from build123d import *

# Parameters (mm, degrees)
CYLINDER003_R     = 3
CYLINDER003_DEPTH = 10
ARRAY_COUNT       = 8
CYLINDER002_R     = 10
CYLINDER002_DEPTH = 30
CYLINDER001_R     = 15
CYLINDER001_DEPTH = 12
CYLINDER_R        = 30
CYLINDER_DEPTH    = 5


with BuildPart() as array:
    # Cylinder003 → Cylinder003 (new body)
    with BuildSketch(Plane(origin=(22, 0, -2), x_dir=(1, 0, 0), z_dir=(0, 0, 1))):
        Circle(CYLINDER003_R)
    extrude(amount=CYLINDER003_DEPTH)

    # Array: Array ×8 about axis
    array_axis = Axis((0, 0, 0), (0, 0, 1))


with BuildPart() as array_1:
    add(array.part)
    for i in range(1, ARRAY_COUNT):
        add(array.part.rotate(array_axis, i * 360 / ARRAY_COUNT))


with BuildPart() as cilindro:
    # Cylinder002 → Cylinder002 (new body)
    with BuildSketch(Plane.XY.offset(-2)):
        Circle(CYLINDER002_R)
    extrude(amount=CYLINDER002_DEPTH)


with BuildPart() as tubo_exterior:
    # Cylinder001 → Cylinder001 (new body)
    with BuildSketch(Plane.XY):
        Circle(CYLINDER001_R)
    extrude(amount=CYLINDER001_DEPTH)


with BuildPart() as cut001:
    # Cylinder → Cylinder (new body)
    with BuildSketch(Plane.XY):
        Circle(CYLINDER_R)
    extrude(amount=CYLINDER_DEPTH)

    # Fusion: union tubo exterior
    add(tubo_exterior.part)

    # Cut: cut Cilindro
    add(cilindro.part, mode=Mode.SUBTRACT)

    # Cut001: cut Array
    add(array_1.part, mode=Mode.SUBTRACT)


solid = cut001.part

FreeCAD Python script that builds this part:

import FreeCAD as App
import Part
import Sketcher

doc = App.newDocument("Part")
body = doc.addObject("PartDesign::Body", "Body")

# Sketch on XY plane
sketch1 = body.newObject("Sketcher::SketchObject", "Sketch")
sketch1.AttachmentSupport = (doc.getObject("XY_Plane"), [""])
sketch1.MapMode = "FlatFace"
sketch1.AttachmentOffset = App.Placement(App.Vector(0, 0, -2), App.Rotation())
sketch1.addGeometry(Part.Circle(App.Vector(22, 0, 0), App.Vector(0, 0, 1), 3), False)
sketch1.addConstraint([
    Sketcher.Constraint("PointOnObject", 0, 3, -1),
    Sketcher.Constraint("Diameter", 0, 6.0),
    Sketcher.Constraint("DistanceX", -1, 1, 0, 3, 22.0),
])
pad1 = body.newObject("PartDesign::Pad", "Pad")
pad1.Profile = sketch1
pad1.Length = 10
body2 = doc.addObject("PartDesign::Body", "Body001")
body2.AllowCompound = True
doc.recompute()

body2.BaseFeature = body
doc.recompute()

body3 = doc.addObject("PartDesign::Body", "Body002")
body3.BaseFeature = body
body3.Placement = App.Placement(App.Vector(0, 0, 0), App.Rotation(App.Vector(0, 0, 1), 45))
boolean = body2.newObject("PartDesign::Boolean", "Boolean")
boolean.Type = "Fuse"
boolean.addObjects([body3])
doc.recompute()

body4 = doc.addObject("PartDesign::Body", "Body003")
body4.BaseFeature = body
body4.Placement = App.Placement(App.Vector(0, 0, 0), App.Rotation(App.Vector(0, 0, 1), 90))
boolean2 = body2.newObject("PartDesign::Boolean", "Boolean001")
boolean2.Type = "Fuse"
boolean2.addObjects([body4])
doc.recompute()

body5 = doc.addObject("PartDesign::Body", "Body004")
body5.BaseFeature = body
body5.Placement = App.Placement(App.Vector(0, 0, 0), App.Rotation(App.Vector(0, 0, 1), 135))
boolean3 = body2.newObject("PartDesign::Boolean", "Boolean002")
boolean3.Type = "Fuse"
boolean3.addObjects([body5])
doc.recompute()

body6 = doc.addObject("PartDesign::Body", "Body005")
body6.BaseFeature = body
body6.Placement = App.Placement(App.Vector(0, 0, 0), App.Rotation(App.Vector(0, 0, 1), 180))
boolean4 = body2.newObject("PartDesign::Boolean", "Boolean003")
boolean4.Type = "Fuse"
boolean4.addObjects([body6])
doc.recompute()

body7 = doc.addObject("PartDesign::Body", "Body006")
body7.BaseFeature = body
body7.Placement = App.Placement(App.Vector(0, 0, 0), App.Rotation(App.Vector(0, 0, 1), 225))
boolean5 = body2.newObject("PartDesign::Boolean", "Boolean004")
boolean5.Type = "Fuse"
boolean5.addObjects([body7])
doc.recompute()

body8 = doc.addObject("PartDesign::Body", "Body007")
body8.BaseFeature = body
body8.Placement = App.Placement(App.Vector(0, 0, 0), App.Rotation(App.Vector(0, 0, 1), 270))
boolean6 = body2.newObject("PartDesign::Boolean", "Boolean005")
boolean6.Type = "Fuse"
boolean6.addObjects([body8])
doc.recompute()

body.Placement = App.Placement(App.Vector(0, 0, 0), App.Rotation(App.Vector(0, 0, 1), 315))
boolean7 = body2.newObject("PartDesign::Boolean", "Boolean006")
boolean7.Type = "Fuse"
boolean7.addObjects([body])
body9 = doc.addObject("PartDesign::Body", "Body008")

# Sketch on XY plane
sketch2 = body9.newObject("Sketcher::SketchObject", "Sketch001")
sketch2.AttachmentSupport = (doc.getObject("XY_Plane008"), [""])
sketch2.MapMode = "FlatFace"
sketch2.AttachmentOffset = App.Placement(App.Vector(0, 0, -2), App.Rotation())
sketch2.addGeometry(Part.Circle(App.Vector(0, 0, 0), App.Vector(0, 0, 1), 10), False)
sketch2.addConstraint([
    Sketcher.Constraint("Coincident", 0, 3, -1, 1),
    Sketcher.Constraint("Diameter", 0, 20.0),
])
pad2 = body9.newObject("PartDesign::Pad", "Pad001")
pad2.Profile = sketch2
pad2.Length = 30
body10 = doc.addObject("PartDesign::Body", "Body009")

# Sketch on XY plane
sketch3 = body10.newObject("Sketcher::SketchObject", "Sketch002")
sketch3.AttachmentSupport = (doc.getObject("XY_Plane009"), [""])
sketch3.MapMode = "FlatFace"
sketch3.addGeometry(Part.Circle(App.Vector(0, 0, 0), App.Vector(0, 0, 1), 15), False)
sketch3.addConstraint([
    Sketcher.Constraint("Coincident", 0, 3, -1, 1),
    Sketcher.Constraint("Diameter", 0, 30.0),
])
pad3 = body10.newObject("PartDesign::Pad", "Pad002")
pad3.Profile = sketch3
pad3.Length = 12
body11 = doc.addObject("PartDesign::Body", "Body010")

# Sketch on XY plane
sketch4 = body11.newObject("Sketcher::SketchObject", "Sketch003")
sketch4.AttachmentSupport = (doc.getObject("XY_Plane010"), [""])
sketch4.MapMode = "FlatFace"
sketch4.addGeometry(Part.Circle(App.Vector(0, 0, 0), App.Vector(0, 0, 1), 30), False)
sketch4.addConstraint([
    Sketcher.Constraint("Coincident", 0, 3, -1, 1),
    Sketcher.Constraint("Diameter", 0, 60.0),
])
pad4 = body11.newObject("PartDesign::Pad", "Pad003")
pad4.Profile = sketch4
pad4.Length = 5
doc.recompute()

boolean8 = body11.newObject("PartDesign::Boolean", "Boolean007")
boolean8.Type = "Fuse"
boolean8.addObjects([body10])
doc.recompute()

boolean9 = body11.newObject("PartDesign::Boolean", "Boolean008")
boolean9.Type = "Cut"
boolean9.addObjects([body9])
doc.recompute()

boolean10 = body11.newObject("PartDesign::Boolean", "Boolean009")
boolean10.Type = "Cut"
boolean10.addObjects([body2])

doc.recompute()
